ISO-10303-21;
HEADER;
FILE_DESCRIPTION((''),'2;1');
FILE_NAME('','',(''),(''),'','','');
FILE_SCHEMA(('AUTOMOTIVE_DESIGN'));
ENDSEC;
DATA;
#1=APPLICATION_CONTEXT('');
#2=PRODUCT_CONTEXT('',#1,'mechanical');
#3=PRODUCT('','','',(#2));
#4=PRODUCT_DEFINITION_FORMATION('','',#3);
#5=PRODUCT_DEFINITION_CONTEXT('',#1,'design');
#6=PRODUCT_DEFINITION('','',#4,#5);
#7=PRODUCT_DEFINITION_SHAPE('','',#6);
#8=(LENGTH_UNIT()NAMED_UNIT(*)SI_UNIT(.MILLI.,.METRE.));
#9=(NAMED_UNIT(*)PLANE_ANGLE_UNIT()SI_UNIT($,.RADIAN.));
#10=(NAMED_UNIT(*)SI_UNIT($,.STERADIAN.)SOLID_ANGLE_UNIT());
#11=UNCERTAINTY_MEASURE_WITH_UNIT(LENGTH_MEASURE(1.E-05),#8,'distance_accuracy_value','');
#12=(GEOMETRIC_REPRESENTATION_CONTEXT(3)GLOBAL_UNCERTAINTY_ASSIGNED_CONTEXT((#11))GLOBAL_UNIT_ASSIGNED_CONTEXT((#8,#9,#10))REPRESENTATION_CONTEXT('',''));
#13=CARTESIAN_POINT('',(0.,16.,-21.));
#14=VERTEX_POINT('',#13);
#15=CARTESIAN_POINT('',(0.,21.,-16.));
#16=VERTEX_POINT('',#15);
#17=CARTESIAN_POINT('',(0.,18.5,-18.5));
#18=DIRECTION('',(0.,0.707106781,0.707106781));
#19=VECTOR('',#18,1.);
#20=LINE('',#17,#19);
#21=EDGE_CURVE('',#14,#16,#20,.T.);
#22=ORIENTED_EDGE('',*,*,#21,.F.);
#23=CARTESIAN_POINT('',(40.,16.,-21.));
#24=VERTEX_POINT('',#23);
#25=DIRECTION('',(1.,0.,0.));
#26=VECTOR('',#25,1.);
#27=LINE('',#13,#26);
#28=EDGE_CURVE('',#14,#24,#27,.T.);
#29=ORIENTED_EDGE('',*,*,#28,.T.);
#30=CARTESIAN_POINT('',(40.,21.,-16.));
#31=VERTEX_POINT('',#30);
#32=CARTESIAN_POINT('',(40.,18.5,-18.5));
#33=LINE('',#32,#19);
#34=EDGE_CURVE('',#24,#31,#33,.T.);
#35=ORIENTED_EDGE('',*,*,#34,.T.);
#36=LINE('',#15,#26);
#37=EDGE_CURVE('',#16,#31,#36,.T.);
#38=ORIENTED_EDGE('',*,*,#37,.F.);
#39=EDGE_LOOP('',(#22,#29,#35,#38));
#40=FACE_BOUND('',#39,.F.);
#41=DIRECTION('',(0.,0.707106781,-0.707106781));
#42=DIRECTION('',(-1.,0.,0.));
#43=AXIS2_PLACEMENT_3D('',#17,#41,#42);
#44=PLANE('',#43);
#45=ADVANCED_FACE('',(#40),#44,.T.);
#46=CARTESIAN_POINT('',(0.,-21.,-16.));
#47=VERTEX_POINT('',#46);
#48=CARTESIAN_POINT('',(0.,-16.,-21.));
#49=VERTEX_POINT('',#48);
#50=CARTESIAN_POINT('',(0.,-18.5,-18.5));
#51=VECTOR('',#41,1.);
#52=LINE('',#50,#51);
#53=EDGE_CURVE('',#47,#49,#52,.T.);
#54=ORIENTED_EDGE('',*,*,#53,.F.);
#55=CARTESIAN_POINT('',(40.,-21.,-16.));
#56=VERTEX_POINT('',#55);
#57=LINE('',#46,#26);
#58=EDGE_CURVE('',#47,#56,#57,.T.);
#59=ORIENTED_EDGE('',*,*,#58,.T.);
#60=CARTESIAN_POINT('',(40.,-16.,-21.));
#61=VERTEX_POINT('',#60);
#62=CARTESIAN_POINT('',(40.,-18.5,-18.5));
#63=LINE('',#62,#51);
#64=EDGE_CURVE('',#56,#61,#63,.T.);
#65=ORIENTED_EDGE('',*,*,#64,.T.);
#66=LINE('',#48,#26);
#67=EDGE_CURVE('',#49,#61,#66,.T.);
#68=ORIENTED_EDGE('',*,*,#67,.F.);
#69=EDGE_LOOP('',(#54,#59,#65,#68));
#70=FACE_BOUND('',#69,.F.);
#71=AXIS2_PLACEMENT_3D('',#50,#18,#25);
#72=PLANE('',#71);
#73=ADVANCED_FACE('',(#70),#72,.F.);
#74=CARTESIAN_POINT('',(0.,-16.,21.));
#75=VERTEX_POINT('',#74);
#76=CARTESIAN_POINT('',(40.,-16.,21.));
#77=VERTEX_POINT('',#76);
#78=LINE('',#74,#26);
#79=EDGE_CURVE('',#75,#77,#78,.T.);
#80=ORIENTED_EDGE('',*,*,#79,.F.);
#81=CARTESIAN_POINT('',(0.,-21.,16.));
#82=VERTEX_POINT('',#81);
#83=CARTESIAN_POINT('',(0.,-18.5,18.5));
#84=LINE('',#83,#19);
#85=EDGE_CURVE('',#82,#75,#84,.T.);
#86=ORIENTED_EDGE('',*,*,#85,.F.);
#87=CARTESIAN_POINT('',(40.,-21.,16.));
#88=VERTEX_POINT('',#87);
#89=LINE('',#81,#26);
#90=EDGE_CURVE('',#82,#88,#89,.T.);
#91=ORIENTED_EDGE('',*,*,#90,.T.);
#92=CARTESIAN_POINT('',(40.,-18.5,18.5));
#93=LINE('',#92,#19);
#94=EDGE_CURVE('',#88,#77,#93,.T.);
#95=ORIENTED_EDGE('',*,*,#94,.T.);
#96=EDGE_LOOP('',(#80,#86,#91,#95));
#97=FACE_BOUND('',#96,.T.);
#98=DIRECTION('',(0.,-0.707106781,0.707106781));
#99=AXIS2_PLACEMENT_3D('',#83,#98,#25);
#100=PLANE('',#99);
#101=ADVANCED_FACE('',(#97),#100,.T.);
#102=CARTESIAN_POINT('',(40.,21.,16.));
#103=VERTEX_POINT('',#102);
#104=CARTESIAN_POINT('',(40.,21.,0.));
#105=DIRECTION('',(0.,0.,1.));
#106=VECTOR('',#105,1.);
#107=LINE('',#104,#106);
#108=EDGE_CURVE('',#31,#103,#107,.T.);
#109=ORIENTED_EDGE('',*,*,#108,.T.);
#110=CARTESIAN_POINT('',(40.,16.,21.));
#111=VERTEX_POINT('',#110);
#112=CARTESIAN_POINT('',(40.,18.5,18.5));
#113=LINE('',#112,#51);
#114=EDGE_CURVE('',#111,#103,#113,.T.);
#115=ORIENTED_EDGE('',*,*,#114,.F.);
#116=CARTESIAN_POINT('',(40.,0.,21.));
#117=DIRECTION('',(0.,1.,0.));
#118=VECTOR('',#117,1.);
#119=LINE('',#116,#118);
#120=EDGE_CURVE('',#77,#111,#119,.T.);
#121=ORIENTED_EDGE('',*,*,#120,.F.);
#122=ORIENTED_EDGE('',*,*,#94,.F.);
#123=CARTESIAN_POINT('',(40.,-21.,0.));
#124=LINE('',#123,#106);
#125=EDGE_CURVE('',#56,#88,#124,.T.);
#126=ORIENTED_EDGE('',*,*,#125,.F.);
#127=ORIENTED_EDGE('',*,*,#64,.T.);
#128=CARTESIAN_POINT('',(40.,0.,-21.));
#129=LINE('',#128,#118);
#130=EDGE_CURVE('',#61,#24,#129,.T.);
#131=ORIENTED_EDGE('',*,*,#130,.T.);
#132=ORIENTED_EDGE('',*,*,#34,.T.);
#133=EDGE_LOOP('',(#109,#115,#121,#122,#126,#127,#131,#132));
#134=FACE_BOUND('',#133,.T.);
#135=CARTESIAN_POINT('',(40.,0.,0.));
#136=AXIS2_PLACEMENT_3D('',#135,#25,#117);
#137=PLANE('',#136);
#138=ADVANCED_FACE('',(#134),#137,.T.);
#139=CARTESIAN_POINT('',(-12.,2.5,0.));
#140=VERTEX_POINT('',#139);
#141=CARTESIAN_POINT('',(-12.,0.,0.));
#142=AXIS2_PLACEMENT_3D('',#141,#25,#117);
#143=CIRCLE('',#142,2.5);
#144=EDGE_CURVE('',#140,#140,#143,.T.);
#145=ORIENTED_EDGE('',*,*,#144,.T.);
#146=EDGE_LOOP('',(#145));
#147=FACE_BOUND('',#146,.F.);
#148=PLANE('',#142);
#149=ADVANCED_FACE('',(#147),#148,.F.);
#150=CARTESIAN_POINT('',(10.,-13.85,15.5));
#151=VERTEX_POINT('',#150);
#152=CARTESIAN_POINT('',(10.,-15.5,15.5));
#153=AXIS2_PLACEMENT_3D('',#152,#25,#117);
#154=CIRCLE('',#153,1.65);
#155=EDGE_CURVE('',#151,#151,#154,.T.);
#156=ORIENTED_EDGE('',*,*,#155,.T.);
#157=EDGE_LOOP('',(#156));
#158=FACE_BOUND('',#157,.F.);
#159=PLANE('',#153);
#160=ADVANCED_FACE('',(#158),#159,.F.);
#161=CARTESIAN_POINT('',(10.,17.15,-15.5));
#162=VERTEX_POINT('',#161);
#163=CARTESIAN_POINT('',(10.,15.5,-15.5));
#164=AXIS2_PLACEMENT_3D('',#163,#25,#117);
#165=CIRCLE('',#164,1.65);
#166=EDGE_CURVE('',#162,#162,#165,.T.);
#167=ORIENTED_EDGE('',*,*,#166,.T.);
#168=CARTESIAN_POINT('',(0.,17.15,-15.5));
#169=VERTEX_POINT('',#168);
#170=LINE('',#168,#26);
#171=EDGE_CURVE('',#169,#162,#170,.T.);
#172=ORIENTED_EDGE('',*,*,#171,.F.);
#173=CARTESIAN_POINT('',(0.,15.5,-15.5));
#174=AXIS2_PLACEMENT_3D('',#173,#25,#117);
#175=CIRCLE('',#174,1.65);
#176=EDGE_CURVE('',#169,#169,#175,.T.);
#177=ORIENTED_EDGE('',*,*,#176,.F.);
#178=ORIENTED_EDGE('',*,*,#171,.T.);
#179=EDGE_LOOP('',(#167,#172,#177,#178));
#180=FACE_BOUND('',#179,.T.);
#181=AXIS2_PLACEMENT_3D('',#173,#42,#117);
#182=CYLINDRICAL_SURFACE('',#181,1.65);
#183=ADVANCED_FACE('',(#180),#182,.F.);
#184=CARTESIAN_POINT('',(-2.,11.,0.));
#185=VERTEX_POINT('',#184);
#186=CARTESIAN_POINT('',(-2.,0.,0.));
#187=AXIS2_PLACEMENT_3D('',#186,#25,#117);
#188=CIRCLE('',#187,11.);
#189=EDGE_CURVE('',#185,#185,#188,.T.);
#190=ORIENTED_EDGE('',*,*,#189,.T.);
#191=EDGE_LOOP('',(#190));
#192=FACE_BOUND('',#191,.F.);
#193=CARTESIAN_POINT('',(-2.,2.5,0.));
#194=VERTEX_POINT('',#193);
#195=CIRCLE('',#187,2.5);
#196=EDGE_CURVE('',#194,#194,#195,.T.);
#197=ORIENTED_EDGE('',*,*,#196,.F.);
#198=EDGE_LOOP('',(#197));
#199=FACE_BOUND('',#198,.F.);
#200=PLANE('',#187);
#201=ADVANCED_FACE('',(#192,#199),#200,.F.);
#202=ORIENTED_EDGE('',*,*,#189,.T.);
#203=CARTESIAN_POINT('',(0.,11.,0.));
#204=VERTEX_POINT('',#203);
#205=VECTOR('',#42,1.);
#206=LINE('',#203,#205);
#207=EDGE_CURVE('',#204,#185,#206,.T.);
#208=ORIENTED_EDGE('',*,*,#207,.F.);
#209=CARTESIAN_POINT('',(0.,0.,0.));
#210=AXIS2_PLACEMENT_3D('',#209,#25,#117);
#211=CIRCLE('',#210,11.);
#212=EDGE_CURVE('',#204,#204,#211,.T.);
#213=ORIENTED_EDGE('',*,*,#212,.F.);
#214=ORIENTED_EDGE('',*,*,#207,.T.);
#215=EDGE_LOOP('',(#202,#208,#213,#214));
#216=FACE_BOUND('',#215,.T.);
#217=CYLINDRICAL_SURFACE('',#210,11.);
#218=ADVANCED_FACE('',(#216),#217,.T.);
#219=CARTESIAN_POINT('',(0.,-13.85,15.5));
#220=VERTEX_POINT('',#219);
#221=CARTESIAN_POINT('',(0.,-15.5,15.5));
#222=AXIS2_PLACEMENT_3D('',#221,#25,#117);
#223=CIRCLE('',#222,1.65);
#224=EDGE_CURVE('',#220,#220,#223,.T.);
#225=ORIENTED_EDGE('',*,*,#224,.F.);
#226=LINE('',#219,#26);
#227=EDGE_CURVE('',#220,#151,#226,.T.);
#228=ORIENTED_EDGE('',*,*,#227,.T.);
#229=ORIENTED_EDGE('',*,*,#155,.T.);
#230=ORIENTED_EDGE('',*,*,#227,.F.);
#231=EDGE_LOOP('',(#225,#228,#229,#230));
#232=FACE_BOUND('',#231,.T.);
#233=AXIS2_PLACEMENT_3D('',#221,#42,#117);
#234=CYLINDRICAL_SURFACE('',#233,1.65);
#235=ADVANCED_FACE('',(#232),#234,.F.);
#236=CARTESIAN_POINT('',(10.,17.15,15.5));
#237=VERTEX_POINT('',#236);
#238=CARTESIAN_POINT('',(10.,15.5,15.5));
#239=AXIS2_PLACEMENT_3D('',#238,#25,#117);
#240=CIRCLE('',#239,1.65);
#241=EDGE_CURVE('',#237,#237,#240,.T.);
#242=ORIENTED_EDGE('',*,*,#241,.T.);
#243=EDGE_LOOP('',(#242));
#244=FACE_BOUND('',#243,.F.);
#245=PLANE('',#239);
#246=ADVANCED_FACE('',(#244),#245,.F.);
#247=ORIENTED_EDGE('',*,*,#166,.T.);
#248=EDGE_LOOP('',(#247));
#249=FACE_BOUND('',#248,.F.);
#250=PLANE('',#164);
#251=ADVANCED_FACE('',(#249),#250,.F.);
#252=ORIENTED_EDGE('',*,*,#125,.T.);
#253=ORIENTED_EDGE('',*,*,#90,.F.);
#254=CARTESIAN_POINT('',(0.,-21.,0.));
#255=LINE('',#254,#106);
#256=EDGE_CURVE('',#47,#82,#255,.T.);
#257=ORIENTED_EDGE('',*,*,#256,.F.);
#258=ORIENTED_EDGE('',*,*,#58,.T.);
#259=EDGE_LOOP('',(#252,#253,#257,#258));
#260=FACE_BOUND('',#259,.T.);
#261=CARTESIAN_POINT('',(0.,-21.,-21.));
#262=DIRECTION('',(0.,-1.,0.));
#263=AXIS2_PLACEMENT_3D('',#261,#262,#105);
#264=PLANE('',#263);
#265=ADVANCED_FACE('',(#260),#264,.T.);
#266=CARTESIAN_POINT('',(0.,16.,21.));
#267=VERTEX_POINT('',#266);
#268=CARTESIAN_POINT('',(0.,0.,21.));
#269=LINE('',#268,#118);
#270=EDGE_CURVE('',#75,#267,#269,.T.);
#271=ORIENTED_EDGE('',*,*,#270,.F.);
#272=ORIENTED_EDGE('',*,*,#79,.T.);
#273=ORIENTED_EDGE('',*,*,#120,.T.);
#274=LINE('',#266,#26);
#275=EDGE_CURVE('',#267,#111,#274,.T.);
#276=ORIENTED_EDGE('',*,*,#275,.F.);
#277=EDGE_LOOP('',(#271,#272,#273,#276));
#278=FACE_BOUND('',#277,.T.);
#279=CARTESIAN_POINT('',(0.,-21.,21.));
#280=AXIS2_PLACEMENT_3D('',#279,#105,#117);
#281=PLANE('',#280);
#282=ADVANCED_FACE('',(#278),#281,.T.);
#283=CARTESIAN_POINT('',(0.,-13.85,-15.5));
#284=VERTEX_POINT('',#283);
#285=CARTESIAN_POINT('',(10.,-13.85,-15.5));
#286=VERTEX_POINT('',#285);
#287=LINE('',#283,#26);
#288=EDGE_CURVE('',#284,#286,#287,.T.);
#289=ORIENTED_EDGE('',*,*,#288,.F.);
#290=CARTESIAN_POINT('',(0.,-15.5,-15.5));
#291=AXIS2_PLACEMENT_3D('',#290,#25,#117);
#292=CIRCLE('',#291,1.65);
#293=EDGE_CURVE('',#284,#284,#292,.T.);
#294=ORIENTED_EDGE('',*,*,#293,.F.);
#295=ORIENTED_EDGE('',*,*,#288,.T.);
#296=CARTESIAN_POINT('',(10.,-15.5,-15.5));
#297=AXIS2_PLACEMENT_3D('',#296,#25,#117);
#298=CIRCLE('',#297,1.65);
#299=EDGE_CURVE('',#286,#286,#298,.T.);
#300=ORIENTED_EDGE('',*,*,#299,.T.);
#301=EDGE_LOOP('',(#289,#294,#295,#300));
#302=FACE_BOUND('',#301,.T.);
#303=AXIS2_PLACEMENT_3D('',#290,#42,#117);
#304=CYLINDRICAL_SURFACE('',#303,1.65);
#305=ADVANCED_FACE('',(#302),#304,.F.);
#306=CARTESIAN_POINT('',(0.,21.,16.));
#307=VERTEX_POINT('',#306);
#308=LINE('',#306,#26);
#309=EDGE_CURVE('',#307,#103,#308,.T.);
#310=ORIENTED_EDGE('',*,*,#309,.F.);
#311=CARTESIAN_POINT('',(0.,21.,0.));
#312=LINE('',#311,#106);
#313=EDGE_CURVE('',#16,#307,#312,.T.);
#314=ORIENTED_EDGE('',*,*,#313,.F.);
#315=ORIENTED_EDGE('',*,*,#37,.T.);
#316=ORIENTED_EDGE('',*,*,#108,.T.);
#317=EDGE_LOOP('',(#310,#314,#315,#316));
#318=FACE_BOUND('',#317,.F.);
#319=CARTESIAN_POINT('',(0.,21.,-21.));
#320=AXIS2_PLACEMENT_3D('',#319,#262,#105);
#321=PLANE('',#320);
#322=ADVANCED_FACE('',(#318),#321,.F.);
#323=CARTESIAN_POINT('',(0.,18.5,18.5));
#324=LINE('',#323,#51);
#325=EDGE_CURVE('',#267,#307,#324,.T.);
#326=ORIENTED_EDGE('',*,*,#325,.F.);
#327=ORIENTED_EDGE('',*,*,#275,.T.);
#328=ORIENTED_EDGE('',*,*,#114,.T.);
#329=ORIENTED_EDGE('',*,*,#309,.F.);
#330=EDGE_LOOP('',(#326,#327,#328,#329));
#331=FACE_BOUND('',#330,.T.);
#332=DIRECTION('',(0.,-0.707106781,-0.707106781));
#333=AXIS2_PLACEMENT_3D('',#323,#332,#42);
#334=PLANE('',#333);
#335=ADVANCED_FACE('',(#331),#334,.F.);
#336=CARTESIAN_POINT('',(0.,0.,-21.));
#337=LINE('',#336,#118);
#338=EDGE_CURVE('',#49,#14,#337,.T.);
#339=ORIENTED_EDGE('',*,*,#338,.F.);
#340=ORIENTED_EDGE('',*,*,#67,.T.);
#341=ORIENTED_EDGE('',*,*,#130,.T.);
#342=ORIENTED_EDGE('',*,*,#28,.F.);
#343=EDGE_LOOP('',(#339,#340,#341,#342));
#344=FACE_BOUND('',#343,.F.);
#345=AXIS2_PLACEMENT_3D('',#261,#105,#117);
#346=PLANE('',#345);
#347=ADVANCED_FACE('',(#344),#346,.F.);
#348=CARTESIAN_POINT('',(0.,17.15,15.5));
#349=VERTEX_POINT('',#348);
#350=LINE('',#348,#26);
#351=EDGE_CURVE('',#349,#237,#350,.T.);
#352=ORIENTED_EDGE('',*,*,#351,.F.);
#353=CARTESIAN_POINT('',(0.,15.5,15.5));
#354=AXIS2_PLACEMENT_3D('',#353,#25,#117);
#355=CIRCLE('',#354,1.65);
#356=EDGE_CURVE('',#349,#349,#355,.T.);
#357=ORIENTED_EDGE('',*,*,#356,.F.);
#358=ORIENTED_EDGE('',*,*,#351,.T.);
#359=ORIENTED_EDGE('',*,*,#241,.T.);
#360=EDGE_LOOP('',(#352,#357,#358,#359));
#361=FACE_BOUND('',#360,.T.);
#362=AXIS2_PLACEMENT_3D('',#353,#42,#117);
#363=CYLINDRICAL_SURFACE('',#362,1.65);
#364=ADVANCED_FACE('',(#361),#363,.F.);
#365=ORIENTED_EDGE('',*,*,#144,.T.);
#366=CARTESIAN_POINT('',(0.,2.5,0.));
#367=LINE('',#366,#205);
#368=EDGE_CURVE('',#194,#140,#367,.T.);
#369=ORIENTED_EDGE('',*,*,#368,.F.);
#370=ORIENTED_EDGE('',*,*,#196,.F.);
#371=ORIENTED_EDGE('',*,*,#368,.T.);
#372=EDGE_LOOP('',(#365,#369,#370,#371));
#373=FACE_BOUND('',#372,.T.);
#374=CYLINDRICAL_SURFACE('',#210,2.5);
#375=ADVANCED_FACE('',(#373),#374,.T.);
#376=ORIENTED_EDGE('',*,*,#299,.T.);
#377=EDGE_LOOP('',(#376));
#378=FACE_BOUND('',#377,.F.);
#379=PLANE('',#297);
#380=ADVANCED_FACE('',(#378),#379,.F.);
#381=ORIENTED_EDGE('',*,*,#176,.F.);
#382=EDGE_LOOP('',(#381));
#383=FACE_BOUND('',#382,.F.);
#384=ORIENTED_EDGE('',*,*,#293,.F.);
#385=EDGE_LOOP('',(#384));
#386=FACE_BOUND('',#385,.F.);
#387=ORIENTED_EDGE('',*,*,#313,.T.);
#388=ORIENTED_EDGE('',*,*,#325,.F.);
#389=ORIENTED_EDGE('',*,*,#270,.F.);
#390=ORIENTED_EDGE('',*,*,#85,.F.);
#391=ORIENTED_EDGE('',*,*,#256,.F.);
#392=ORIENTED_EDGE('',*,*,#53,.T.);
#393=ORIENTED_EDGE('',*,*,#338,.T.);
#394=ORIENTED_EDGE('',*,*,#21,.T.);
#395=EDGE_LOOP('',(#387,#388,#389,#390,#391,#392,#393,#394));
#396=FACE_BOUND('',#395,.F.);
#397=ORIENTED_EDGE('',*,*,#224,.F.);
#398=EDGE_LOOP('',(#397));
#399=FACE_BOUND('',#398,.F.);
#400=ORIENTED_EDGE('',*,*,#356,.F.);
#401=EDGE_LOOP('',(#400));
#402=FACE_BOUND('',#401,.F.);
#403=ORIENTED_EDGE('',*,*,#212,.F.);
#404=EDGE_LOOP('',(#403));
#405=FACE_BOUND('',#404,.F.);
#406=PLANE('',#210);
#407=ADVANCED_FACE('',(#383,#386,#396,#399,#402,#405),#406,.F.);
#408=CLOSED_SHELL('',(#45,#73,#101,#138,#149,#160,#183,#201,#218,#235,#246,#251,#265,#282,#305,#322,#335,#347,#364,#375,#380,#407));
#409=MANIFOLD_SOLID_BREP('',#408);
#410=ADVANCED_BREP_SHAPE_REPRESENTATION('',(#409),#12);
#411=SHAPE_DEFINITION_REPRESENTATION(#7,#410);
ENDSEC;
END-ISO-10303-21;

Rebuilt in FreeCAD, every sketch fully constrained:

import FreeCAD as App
import Part
import Sketcher


def edges_at(feature, points):
    """Names of the edges that pass closest to the given points."""
    edges = feature.Shape.Edges
    near = lambda p: min(range(len(edges)), key=lambda i: edges[i].distToShape(Part.Vertex(*p))[0])
    return sorted({f"Edge{near(p) + 1}" for p in points})


def add_polygon(sketch, points):
    """Adds a closed chain of lines whose ends are joined by coincident constraints."""
    first, n = sketch.GeometryCount, len(points)
    for a, b in zip(points, points[1:] + points[:1]):
        sketch.addGeometry(Part.LineSegment(App.Vector(*a, 0), App.Vector(*b, 0)), False)
    for i in range(n):
        sketch.addConstraint(Sketcher.Constraint("Coincident", first + i, 2, first + (i + 1) % n, 1))

doc = App.newDocument("Part")
params = doc.addObject("Spreadsheet::Sheet", "Params")
for row, (alias, value) in enumerate([
    ("sketch1_width", "42 mm"),
    ("pad1_length", "40 mm"),
    ("sketch2_diameter", "22 mm"),
    ("pad2_length", "2 mm"),
    ("sketch3_diameter", "5 mm"),
    ("pad3_length", "12 mm"),
    ("sketch4_diameter", "3.3 mm"),
    ("pocket1_length", "10 mm"),
    ("chamfer_size", "5 mm"),
], start=1):
    params.set(f"A{row}", alias)
    params.set(f"B{row}", "=" + value)
    params.setAlias(f"B{row}", alias)

body = doc.addObject("PartDesign::Body", "Body")

# Sketch on YZ plane
sketch1 = doc.addObject("Sketcher::SketchObject", "Sketch")
body.addObject(sketch1)
sketch1.AttachmentSupport = (doc.YZ_Plane, [""])
sketch1.MapMode = "FlatFace"
add_polygon(sketch1, [(-21, 21), (-21, -21), (21, -21), (21, 21)])  # lines 0-3
sketch1.addConstraint([
    Sketcher.Constraint("Vertical", 0),
    Sketcher.Constraint("Horizontal", 1),
    Sketcher.Constraint("Vertical", 2),
    Sketcher.Constraint("Horizontal", 3),
    Sketcher.Constraint("Symmetric", 0, 2, 2, 2, -1, 1),
    Sketcher.Constraint("Equal", 3, 0),
    Sketcher.Constraint("DistanceX", 1, 1, 1, 2, 42.0),
])
sketch1.setExpression("Constraints[10]", "Params.sketch1_width")
pad1 = doc.addObject("PartDesign::Pad", "Pad")
body.addObject(pad1)
pad1.Profile = sketch1
pad1.setExpression("Length", "Params.pad1_length")

# Sketch on YZ plane
sketch2 = doc.addObject("Sketcher::SketchObject", "Sketch001")
body.addObject(sketch2)
sketch2.AttachmentSupport = (doc.YZ_Plane, [""])
sketch2.MapMode = "FlatFace"
sketch2.addGeometry(Part.Circle(App.Vector(0, 0, 0), App.Vector(0, 0, 1), 11), False)
sketch2.addConstraint([
    Sketcher.Constraint("Coincident", 0, 3, -1, 1),
    Sketcher.Constraint("Diameter", 0, 22.0),
])
sketch2.setExpression("Constraints[1]", "Params.sketch2_diameter")
pad2 = doc.addObject("PartDesign::Pad", "Pad001")
body.addObject(pad2)
pad2.Profile = sketch2
pad2.setExpression("Length", "Params.pad2_length")
pad2.Reversed = True

# Sketch on YZ plane
sketch3 = doc.addObject("Sketcher::SketchObject", "Sketch002")
body.addObject(sketch3)
sketch3.AttachmentSupport = (doc.YZ_Plane, [""])
sketch3.MapMode = "FlatFace"
sketch3.addGeometry(Part.Circle(App.Vector(0, 0, 0), App.Vector(0, 0, 1), 2.5), False)
sketch3.addConstraint([
    Sketcher.Constraint("Coincident", 0, 3, -1, 1),
    Sketcher.Constraint("Diameter", 0, 5.0),
])
sketch3.setExpression("Constraints[1]", "Params.sketch3_diameter")
pad3 = doc.addObject("PartDesign::Pad", "Pad002")
body.addObject(pad3)
pad3.Profile = sketch3
pad3.setExpression("Length", "Params.pad3_length")
pad3.Reversed = True

# Sketch on YZ plane
sketch4 = doc.addObject("Sketcher::SketchObject", "Sketch003")
body.addObject(sketch4)
sketch4.AttachmentSupport = (doc.YZ_Plane, [""])
sketch4.MapMode = "FlatFace"
sketch4.addGeometry([
    Part.Circle(App.Vector(15.5, 15.5, 0), App.Vector(0, 0, 1), 1.65),
    Part.Circle(App.Vector(15.5, -15.5, 0), App.Vector(0, 0, 1), 1.65),
    Part.Circle(App.Vector(-15.5, 15.5, 0), App.Vector(0, 0, 1), 1.65),
    Part.Circle(App.Vector(-15.5, -15.5, 0), App.Vector(0, 0, 1), 1.65),
], False)
sketch4.addConstraint([
    Sketcher.Constraint("Equal", 0, 1),
    Sketcher.Constraint("Equal", 1, 2),
    Sketcher.Constraint("Equal", 2, 3),
    Sketcher.Constraint("Symmetric", 1, 3, 2, 3, -1, 1),
    Sketcher.Constraint("Symmetric", 0, 3, 3, 3, -1, 1),
    Sketcher.Constraint("Symmetric", 0, 3, 2, 3, -2),
    Sketcher.Constraint("Diameter", 0, 3.3),
    Sketcher.Constraint("DistanceY", 1, 3, 0, 3, 31.0),
    Sketcher.Constraint("DistanceX", 2, 3, 0, 3, 31.0),
])
sketch4.setExpression("Constraints[6]", "Params.sketch4_diameter")
pocket1 = doc.addObject("PartDesign::Pocket", "Pocket")
body.addObject(pocket1)
pocket1.Profile = sketch4
pocket1.setExpression("Length", "Params.pocket1_length")
pocket1.Reversed = True
doc.recompute()

chamfer = doc.addObject("PartDesign::Chamfer", "Chamfer")
body.addObject(chamfer)
chamfer.Base = (pocket1, edges_at(pocket1, [
    (20, -21, 21),
    (20, 21, 21),
    (20, 21, -21),
    (20, -21, -21),
]))
chamfer.setExpression("Size", "Params.chamfer_size")

doc.recompute()
